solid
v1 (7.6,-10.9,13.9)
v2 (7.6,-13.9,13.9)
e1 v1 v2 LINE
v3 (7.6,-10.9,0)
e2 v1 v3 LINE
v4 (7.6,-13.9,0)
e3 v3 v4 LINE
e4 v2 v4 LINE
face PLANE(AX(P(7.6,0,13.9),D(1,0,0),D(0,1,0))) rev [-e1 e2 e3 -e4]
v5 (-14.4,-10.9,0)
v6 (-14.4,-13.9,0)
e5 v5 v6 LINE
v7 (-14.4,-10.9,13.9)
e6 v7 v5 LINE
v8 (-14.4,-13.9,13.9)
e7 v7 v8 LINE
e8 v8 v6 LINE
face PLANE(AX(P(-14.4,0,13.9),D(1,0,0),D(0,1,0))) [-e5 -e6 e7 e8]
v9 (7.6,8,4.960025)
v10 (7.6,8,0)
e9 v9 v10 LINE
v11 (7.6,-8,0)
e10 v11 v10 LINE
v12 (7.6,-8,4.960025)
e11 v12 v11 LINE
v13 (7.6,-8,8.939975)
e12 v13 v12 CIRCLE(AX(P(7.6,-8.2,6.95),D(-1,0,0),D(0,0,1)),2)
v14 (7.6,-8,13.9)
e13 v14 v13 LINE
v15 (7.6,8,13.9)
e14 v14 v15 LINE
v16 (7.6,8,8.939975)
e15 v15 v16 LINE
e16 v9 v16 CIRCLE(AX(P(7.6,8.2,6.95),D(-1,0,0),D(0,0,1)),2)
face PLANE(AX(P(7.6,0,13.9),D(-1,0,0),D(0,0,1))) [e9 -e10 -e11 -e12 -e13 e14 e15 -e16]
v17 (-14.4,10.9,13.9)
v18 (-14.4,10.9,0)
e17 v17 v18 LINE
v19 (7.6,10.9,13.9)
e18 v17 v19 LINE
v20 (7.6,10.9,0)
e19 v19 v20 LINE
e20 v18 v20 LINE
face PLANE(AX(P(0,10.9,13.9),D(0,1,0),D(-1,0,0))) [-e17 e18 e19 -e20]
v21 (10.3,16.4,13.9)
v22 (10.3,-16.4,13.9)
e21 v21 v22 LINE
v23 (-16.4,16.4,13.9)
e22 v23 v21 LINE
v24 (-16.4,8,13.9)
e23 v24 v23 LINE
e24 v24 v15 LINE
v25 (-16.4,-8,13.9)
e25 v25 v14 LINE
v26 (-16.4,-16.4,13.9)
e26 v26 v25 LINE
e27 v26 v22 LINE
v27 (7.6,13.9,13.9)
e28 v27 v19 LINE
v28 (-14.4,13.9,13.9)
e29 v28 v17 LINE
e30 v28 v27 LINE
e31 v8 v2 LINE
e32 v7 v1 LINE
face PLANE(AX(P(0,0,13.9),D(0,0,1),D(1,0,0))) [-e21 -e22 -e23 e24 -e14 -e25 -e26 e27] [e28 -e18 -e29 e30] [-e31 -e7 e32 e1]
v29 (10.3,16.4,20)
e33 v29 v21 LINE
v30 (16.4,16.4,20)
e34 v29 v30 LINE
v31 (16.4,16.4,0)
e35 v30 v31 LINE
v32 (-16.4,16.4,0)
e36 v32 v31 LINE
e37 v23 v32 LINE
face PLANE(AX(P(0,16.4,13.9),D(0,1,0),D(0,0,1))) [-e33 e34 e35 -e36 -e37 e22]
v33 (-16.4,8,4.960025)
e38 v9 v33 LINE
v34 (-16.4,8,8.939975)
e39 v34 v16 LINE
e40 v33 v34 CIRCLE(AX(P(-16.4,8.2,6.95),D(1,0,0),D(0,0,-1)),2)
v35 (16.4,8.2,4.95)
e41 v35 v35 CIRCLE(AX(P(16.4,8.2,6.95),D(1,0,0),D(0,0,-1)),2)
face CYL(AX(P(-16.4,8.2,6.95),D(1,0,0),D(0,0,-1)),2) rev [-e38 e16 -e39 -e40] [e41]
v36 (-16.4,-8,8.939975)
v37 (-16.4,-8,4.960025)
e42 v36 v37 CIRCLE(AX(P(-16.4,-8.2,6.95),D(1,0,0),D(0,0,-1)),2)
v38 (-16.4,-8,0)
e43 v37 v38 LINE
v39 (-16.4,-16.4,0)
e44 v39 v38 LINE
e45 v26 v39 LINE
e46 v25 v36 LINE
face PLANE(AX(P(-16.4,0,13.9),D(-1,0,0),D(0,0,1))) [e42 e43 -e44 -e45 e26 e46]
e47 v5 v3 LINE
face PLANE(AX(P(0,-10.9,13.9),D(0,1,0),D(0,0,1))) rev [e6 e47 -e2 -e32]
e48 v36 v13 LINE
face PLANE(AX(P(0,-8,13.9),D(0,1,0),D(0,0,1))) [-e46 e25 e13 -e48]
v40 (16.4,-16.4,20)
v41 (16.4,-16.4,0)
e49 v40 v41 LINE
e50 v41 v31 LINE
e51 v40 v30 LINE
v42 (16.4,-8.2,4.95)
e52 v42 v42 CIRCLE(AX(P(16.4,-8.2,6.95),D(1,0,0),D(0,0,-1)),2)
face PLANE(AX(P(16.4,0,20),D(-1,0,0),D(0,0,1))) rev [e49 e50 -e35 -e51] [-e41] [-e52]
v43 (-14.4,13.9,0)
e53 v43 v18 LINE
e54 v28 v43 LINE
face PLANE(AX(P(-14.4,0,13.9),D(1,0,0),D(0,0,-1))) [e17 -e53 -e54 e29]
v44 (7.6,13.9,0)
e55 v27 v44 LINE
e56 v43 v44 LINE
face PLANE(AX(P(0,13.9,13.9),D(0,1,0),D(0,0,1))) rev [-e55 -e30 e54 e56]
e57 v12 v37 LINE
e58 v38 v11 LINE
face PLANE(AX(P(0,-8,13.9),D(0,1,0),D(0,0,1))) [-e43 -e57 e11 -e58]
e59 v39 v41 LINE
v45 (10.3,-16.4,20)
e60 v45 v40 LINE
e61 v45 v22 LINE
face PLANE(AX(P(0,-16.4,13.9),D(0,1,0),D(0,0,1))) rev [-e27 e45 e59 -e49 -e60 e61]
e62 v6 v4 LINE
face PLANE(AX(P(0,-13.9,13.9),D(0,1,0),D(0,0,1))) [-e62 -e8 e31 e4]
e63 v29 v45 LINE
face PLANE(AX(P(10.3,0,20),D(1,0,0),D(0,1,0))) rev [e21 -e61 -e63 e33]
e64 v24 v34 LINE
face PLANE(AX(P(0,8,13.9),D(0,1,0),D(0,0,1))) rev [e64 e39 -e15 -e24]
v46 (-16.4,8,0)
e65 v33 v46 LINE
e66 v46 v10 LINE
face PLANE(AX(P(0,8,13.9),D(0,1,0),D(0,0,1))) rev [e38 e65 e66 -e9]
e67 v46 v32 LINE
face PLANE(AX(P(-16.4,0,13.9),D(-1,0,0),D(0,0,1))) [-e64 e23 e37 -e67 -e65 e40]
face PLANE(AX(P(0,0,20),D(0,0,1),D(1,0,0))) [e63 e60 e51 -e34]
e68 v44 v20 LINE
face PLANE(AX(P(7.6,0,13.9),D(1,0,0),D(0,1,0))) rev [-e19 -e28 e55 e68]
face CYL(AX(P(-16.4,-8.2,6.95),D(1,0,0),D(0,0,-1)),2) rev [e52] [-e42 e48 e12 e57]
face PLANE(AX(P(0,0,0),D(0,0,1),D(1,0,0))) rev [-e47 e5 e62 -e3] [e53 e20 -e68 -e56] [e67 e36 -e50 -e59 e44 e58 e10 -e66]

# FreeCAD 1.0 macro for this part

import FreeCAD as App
import Part
import Sketcher
from FreeCAD import Vector

doc = App.newDocument("Part")
body = doc.addObject("PartDesign::Body", "Body")

# Sketch on XY plane
sketch1 = body.newObject("Sketcher::SketchObject", "Sketch")
sketch1.AttachmentSupport = (doc.getObject("XY_Plane"), [""])
sketch1.MapMode = "FlatFace"
sketch1.addGeometry([
    Part.LineSegment(Vector(-16.4, -8, 0), Vector(-16.4, -16.4, 0)),  # 0
    Part.LineSegment(Vector(-16.4, -16.4, 0), Vector(10.3, -16.4, 0)),  # 1
    Part.LineSegment(Vector(10.3, -16.4, 0), Vector(10.3, 16.4, 0)),  # 2
    Part.LineSegment(Vector(10.3, 16.4, 0), Vector(-16.4, 16.4, 0)),  # 3
    Part.LineSegment(Vector(-16.4, 16.4, 0), Vector(-16.4, 8, 0)),  # 4
    Part.LineSegment(Vector(-16.4, 8, 0), Vector(7.6, 8, 0)),  # 5
    Part.LineSegment(Vector(7.6, 8, 0), Vector(7.6, -8, 0)),  # 6
    Part.LineSegment(Vector(7.6, -8, 0), Vector(-16.4, -8, 0)),  # 7
    Part.LineSegment(Vector(7.6, -13.9, 0), Vector(-14.4, -13.9, 0)),  # 8
    Part.LineSegment(Vector(-14.4, -13.9, 0), Vector(-14.4, -10.9, 0)),  # 9
    Part.LineSegment(Vector(-14.4, -10.9, 0), Vector(7.6, -10.9, 0)),  # 10
    Part.LineSegment(Vector(7.6, -10.9, 0), Vector(7.6, -13.9, 0)),  # 11
    Part.LineSegment(Vector(7.6, 10.9, 0), Vector(-14.4, 10.9, 0)),  # 12
    Part.LineSegment(Vector(-14.4, 10.9, 0), Vector(-14.4, 13.9, 0)),  # 13
    Part.LineSegment(Vector(-14.4, 13.9, 0), Vector(7.6, 13.9, 0)),  # 14
    Part.LineSegment(Vector(7.6, 13.9, 0), Vector(7.6, 10.9, 0)),  # 15
], False)
sketch1.addConstraint([
    Sketcher.Constraint("Coincident", 0, 2, 1, 1),
    Sketcher.Constraint("Coincident", 1, 2, 2, 1),
    Sketcher.Constraint("Coincident", 2, 2, 3, 1),
    Sketcher.Constraint("Coincident", 3, 2, 4, 1),
    Sketcher.Constraint("Coincident", 4, 2, 5, 1),
    Sketcher.Constraint("Coincident", 5, 2, 6, 1),
    Sketcher.Constraint("Coincident", 6, 2, 7, 1),
    Sketcher.Constraint("Coincident", 7, 2, 0, 1),
    Sketcher.Constraint("Coincident", 8, 2, 9, 1),
    Sketcher.Constraint("Coincident", 9, 2, 10, 1),
    Sketcher.Constraint("Coincident", 10, 2, 11, 1),
    Sketcher.Constraint("Coincident", 11, 2, 8, 1),
    Sketcher.Constraint("Coincident", 12, 2, 13, 1),
    Sketcher.Constraint("Coincident", 13, 2, 14, 1),
    Sketcher.Constraint("Coincident", 14, 2, 15, 1),
    Sketcher.Constraint("Coincident", 15, 2, 12, 1),
    Sketcher.Constraint("Vertical", 0),
    Sketcher.Constraint("Horizontal", 1),
    Sketcher.Constraint("Vertical", 2),
    Sketcher.Constraint("Horizontal", 3),
    Sketcher.Constraint("Vertical", 4),
    Sketcher.Constraint("Horizontal", 5),
    Sketcher.Constraint("Vertical", 6),
    Sketcher.Constraint("Horizontal", 7),
    Sketcher.Constraint("Horizontal", 8),
    Sketcher.Constraint("Vertical", 9),
    Sketcher.Constraint("Horizontal", 10),
    Sketcher.Constraint("Vertical", 11),
    Sketcher.Constraint("Horizontal", 12),
    Sketcher.Constraint("Vertical", 13),
    Sketcher.Constraint("Horizontal", 14),
    Sketcher.Constraint("Vertical", 15),
    Sketcher.Constraint("Symmetric", 0, 2, 3, 2, -1),
    Sketcher.Constraint("Symmetric", 9, 2, 12, 2, -1),
    Sketcher.Constraint("Symmetric", 11, 2, 14, 2, -1),
    Sketcher.Constraint("Vertical", 6, 2, 10, 2),
    Sketcher.Constraint("Equal", 0, 4),
    Sketcher.Constraint("DistanceX", 5, 1, 5, 2, 24.0),
    Sketcher.Constraint("DistanceX", 8, 2, 8, 1, 22.0),
    Sketcher.Constraint("DistanceY", 6, 2, 6, 1, 16.0),
    Sketcher.Constraint("DistanceY", 9, 1, 9, 2, 3.0),
    Sketcher.Constraint("DistanceX", 1, 1, 1, 2, 26.7),
    Sketcher.Constraint("DistanceY", 0, 2, 0, 1, 8.4),
    Sketcher.Constraint("DistanceX", 0, 2, -1, 1, 16.4),
    Sketcher.Constraint("DistanceY", 8, 2, -1, 1, 13.9),
])
pad1 = body.newObject("PartDesign::Pad", "Pad")
pad1.Profile = sketch1
pad1.Length = 13.9

# Sketch on XY plane
sketch2 = body.newObject("Sketcher::SketchObject", "Sketch001")
sketch2.AttachmentSupport = (doc.getObject("XY_Plane"), [""])
sketch2.MapMode = "FlatFace"
sketch2.addGeometry([
    Part.LineSegment(Vector(10, 16, 0), Vector(10, -16, 0)),
    Part.LineSegment(Vector(10, -16, 0), Vector(16, -16, 0)),
    Part.LineSegment(Vector(16, -16, 0), Vector(16, 16, 0)),
    Part.LineSegment(Vector(16, 16, 0), Vector(10, 16, 0)),
], False)
sketch2.addConstraint([
    Sketcher.Constraint("Coincident", 0, 2, 1, 1),
    Sketcher.Constraint("Coincident", 1, 2, 2, 1),
    Sketcher.Constraint("Coincident", 2, 2, 3, 1),
    Sketcher.Constraint("Coincident", 3, 2, 0, 1),
    Sketcher.Constraint("Vertical", 0),
    Sketcher.Constraint("Horizontal", 1),
    Sketcher.Constraint("Vertical", 2),
    Sketcher.Constraint("Horizontal", 3),
    Sketcher.Constraint("DistanceX", 1, 1, 1, 2, 6.1),
    Sketcher.Constraint("DistanceY", 0, 2, 0, 1, 32.8),
    Sketcher.Constraint("DistanceX", -1, 1, 0, 2, 10.3),
    Sketcher.Constraint("DistanceY", 0, 2, -1, 1, 16.4),
])
pad2 = body.newObject("PartDesign::Pad", "Pad001")
pad2.Profile = sketch2
pad2.Length = 20

# Sketch on YZ plane
sketch3 = body.newObject("Sketcher::SketchObject", "Sketch002")
sketch3.AttachmentSupport = (doc.getObject("YZ_Plane"), [""])
sketch3.MapMode = "FlatFace"
sketch3.AttachmentOffset = App.Placement(Vector(0, 0, 16.4), App.Rotation())
sketch3.addGeometry([
    Part.Circle(Vector(8.2, 7, 0), Vector(0, 0, 1), 2),
    Part.Circle(Vector(-8.2, 7, 0), Vector(0, 0, 1), 2),
], False)
sketch3.addConstraint([
    Sketcher.Constraint("Equal", 0, 1),
    Sketcher.Constraint("Symmetric", 0, 3, 1, 3, -2),
    Sketcher.Constraint("Diameter", 0, 4.0),
    Sketcher.Constraint("DistanceX", -1, 1, 0, 3, 8.2),
    Sketcher.Constraint("DistanceY", -1, 1, 0, 3, 6.95),
])
pocket1 = body.newObject("PartDesign::Pocket", "Pocket")
pocket1.Profile = sketch3
pocket1.Type = "ThroughAll"

doc.recompute()
